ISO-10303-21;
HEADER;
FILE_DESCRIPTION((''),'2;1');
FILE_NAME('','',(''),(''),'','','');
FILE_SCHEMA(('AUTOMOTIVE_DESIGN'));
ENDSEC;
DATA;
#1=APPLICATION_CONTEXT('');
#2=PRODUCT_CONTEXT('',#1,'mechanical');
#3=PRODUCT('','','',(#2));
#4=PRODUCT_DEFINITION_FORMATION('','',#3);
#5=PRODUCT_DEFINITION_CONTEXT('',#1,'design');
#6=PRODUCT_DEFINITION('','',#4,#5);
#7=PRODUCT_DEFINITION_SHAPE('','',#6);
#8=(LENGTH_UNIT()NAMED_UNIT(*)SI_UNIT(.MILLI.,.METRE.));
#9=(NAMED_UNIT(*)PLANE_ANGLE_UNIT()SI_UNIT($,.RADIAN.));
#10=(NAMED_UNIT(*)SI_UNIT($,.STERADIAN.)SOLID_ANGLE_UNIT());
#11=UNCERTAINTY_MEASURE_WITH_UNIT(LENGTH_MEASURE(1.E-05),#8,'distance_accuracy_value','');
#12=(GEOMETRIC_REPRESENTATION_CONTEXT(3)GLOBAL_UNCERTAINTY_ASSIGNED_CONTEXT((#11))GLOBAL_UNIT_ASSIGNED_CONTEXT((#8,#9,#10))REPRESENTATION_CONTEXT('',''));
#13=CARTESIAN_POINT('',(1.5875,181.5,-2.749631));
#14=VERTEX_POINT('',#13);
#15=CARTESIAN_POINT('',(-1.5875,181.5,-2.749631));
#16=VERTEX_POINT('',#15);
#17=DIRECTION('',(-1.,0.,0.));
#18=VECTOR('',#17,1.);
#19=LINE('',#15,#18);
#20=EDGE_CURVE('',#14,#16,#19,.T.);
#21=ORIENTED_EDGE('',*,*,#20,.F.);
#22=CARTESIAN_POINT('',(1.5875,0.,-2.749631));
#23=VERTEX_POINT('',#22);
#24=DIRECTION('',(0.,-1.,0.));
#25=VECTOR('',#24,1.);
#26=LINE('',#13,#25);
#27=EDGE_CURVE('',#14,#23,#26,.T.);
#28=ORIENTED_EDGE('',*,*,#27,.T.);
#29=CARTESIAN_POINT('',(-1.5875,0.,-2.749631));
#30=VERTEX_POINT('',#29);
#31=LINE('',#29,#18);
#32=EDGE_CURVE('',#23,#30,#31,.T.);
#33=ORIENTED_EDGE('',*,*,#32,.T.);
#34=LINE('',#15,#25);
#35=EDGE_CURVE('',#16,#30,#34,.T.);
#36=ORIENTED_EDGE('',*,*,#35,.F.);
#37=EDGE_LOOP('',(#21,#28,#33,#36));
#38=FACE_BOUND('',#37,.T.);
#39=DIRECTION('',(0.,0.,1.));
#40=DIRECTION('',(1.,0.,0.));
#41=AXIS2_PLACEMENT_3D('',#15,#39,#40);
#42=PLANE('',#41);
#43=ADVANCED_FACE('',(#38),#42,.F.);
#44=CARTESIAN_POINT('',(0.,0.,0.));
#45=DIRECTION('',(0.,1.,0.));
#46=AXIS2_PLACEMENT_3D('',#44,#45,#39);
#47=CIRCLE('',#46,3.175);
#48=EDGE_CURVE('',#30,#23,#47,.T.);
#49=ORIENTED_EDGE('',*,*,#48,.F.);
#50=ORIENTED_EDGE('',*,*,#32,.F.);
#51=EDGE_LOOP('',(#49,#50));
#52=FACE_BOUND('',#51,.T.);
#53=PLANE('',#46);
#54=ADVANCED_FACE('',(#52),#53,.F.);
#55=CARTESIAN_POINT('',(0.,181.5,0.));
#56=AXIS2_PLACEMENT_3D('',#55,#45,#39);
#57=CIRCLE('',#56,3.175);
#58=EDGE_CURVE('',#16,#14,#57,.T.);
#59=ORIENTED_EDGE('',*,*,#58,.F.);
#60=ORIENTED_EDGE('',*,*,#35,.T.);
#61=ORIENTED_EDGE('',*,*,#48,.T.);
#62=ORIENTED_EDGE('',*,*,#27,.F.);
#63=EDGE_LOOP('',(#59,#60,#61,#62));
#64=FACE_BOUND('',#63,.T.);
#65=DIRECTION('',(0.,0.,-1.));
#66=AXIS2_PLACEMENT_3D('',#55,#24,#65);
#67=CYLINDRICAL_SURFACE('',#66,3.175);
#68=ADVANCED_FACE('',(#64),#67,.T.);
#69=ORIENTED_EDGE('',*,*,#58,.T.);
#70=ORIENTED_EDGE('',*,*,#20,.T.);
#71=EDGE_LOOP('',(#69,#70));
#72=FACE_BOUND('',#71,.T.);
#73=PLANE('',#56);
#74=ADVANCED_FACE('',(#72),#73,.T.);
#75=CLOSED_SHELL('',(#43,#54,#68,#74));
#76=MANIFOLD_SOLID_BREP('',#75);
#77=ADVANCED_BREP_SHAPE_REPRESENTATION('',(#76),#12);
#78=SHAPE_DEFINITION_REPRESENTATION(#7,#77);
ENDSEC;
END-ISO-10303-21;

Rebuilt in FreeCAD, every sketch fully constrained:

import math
import FreeCAD as App
import Part
import Sketcher
Q = App.Units.Quantity

doc = App.newDocument("Part")
body = doc.addObject("PartDesign::Body", "Body")

# Sketch on XZ plane
sketch1 = body.newObject("Sketcher::SketchObject", "Sketch")
sketch1.AttachmentSupport = (doc.getObject("XZ_Plane"), [""])
sketch1.MapMode = "FlatFace"
sketch1.addGeometry(Part.LineSegment(App.Vector(1.5875, -2.749631, 0), App.Vector(-1.5875, -2.749631, 0)), False)
sketch1.addGeometry(Part.ArcOfCircle(Part.Circle(App.Vector(0, 0, 0), App.Vector(0, 0, 1), 3.175), math.radians(-60), math.radians(240)), False)
sketch1.addConstraint(Sketcher.Constraint("Coincident", 0, 1, 1, 1))
sketch1.addConstraint(Sketcher.Constraint("Coincident", 1, 2, 0, 2))
sketch1.addConstraint(Sketcher.Constraint("Horizontal", 0))
sketch1.addConstraint(Sketcher.Constraint("Coincident", 1, 3, -1, 1))
sketch1.addConstraint(Sketcher.Constraint("Radius", 1, Q("0.125 in")))
sketch1.addConstraint(Sketcher.Constraint("DistanceX", 0, 2, 0, 1, Q("0.125 in")))
pad1 = body.newObject("PartDesign::Pad", "Pad")
pad1.Profile = sketch1
pad1.Length = 181.5
pad1.Reversed = True

doc.recompute()
